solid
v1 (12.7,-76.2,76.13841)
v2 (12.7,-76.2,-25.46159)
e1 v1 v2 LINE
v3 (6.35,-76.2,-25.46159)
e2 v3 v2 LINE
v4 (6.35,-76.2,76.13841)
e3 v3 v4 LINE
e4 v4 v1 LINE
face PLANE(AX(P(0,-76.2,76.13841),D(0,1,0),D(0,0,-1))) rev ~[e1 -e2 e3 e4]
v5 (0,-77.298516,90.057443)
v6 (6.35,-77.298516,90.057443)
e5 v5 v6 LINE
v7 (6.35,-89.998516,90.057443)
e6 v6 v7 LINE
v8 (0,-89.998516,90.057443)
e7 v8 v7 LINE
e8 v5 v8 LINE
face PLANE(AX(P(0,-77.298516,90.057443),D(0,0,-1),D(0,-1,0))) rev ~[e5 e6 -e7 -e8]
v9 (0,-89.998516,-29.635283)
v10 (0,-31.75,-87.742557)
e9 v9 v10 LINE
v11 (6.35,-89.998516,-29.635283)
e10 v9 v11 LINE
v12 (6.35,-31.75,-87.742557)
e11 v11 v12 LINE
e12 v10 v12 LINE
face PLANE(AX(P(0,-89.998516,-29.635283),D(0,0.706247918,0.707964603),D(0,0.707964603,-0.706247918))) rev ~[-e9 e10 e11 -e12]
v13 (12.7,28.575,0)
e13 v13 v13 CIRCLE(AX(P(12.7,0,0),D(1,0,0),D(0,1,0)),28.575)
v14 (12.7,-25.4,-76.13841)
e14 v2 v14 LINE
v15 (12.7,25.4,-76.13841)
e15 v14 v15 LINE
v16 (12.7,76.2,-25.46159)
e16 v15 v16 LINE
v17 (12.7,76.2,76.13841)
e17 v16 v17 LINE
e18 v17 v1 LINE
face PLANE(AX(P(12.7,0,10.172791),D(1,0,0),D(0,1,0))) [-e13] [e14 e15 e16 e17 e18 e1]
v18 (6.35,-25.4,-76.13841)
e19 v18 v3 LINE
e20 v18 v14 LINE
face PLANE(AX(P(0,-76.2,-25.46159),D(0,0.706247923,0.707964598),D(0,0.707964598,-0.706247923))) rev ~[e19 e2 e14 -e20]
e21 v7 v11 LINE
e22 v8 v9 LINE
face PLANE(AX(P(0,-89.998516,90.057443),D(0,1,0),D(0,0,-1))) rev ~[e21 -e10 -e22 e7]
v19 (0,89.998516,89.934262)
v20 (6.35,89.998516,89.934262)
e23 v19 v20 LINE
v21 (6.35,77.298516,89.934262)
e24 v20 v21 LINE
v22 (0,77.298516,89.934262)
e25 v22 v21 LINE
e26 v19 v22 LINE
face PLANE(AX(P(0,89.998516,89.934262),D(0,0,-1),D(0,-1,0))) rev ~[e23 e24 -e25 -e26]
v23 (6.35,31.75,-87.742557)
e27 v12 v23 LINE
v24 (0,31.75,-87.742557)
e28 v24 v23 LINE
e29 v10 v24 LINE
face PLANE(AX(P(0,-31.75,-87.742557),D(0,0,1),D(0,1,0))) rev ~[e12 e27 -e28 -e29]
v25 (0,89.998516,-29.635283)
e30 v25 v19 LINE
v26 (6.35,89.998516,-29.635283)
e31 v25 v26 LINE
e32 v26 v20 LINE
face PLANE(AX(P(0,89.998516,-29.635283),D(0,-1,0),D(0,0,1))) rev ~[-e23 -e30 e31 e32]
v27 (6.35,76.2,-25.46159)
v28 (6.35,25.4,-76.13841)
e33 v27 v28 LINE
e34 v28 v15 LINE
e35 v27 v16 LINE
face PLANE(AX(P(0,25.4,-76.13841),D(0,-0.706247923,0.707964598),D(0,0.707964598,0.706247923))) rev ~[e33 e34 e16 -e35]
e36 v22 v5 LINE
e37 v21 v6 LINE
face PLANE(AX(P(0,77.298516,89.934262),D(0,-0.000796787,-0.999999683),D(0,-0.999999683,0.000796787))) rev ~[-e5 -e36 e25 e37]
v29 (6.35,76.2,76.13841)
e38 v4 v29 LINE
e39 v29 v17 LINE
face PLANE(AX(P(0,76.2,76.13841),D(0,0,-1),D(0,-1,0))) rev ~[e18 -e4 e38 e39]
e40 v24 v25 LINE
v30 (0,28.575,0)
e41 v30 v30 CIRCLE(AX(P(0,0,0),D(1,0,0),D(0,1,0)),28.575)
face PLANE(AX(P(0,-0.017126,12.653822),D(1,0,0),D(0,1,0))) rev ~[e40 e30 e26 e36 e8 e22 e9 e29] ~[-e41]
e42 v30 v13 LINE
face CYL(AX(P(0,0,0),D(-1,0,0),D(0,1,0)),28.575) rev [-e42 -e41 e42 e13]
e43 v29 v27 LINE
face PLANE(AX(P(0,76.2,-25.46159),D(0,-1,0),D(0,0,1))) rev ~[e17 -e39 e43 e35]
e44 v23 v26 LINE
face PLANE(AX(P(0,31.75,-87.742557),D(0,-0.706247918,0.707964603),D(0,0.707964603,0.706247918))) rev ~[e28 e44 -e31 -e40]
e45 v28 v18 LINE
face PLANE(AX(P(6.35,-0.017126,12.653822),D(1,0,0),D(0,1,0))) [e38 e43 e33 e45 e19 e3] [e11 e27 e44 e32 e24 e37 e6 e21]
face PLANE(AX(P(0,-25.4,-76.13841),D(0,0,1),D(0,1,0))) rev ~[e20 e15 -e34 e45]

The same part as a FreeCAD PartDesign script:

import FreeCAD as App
import Part
import Sketcher

V = App.Vector
Q = App.Units.Quantity

doc = App.newDocument("Part")
body = doc.addObject("PartDesign::Body", "Body")

# Sketch on YZ plane
sketch1 = doc.addObject("Sketcher::SketchObject", "Sketch")
body.addObject(sketch1)
sketch1.AttachmentSupport = (doc.YZ_Plane, [""])
sketch1.MapMode = "FlatFace"
sketch1.addGeometry([
    Part.LineSegment(V(-76, -25, 0), V(-25, -76, 0)),  # 0
    Part.LineSegment(V(-25, -76, 0), V(25, -76, 0)),  # 1
    Part.LineSegment(V(25, -76, 0), V(76, -25, 0)),  # 2
    Part.LineSegment(V(76, -25, 0), V(76, 76, 0)),  # 3
    Part.LineSegment(V(76, 76, 0), V(-76, 76, 0)),  # 4
    Part.LineSegment(V(-76, 76, 0), V(-76, -25, 0)),  # 5
    Part.Circle(V(0, 0, 0), V(0, 0, 1), 29),  # 6
], False)
sketch1.addConstraint([
    Sketcher.Constraint("Coincident", 0, 2, 1, 1),
    Sketcher.Constraint("Coincident", 1, 2, 2, 1),
    Sketcher.Constraint("Coincident", 2, 2, 3, 1),
    Sketcher.Constraint("Coincident", 3, 2, 4, 1),
    Sketcher.Constraint("Coincident", 4, 2, 5, 1),
    Sketcher.Constraint("Coincident", 5, 2, 0, 1),
    Sketcher.Constraint("Horizontal", 1),
    Sketcher.Constraint("Vertical", 3),
    Sketcher.Constraint("Horizontal", 4),
    Sketcher.Constraint("Vertical", 5),
    Sketcher.Constraint("Coincident", 6, 3, -1, 1),
    Sketcher.Constraint("Symmetric", 2, 2, 5, 2, -2),
    Sketcher.Constraint("Equal", 0, 2),
    Sketcher.Constraint("Diameter", 6, Q("2.25 in")),
    Sketcher.Constraint("DistanceX", 1, 1, 1, 2, Q("2 in")),
    Sketcher.Constraint("DistanceX", 4, 2, 4, 1, Q("6 in")),
    Sketcher.Constraint("DistanceY", 3, 1, 3, 2, Q("4 in")),
    Sketcher.Constraint("Distance", 0, Q("2.825 in")),
    Sketcher.Constraint("DistanceY", 0, 2, -1, 1, Q("76.13841 mm")),
])
pad1 = doc.addObject("PartDesign::Pad", "Pad")
body.addObject(pad1)
pad1.Profile = sketch1
pad1.Length = Q("0.5 in")

# Sketch on YZ plane
sketch2 = doc.addObject("Sketcher::SketchObject", "Sketch001")
body.addObject(sketch2)
sketch2.AttachmentSupport = (doc.YZ_Plane, [""])
sketch2.MapMode = "FlatFace"
sketch2.addGeometry([
    Part.LineSegment(V(90, 90, 0), V(77, 90, 0)),  # 0
    Part.LineSegment(V(77, 90, 0), V(-77, 90, 0)),  # 1
    Part.LineSegment(V(-77, 90, 0), V(-90, 90, 0)),  # 2
    Part.LineSegment(V(-90, 90, 0), V(-90, -30, 0)),  # 3
    Part.LineSegment(V(-90, -30, 0), V(-32, -88, 0)),  # 4
    Part.LineSegment(V(-32, -88, 0), V(32, -88, 0)),  # 5
    Part.LineSegment(V(32, -88, 0), V(90, -30, 0)),  # 6
    Part.LineSegment(V(90, -30, 0), V(90, 90, 0)),  # 7
    Part.LineSegment(V(76, -25, 0), V(25, -76, 0)),  # 8
    Part.LineSegment(V(25, -76, 0), V(-25, -76, 0)),  # 9
    Part.LineSegment(V(-25, -76, 0), V(-76, -25, 0)),  # 10
    Part.LineSegment(V(-76, -25, 0), V(-76, 76, 0)),  # 11
    Part.LineSegment(V(-76, 76, 0), V(76, 76, 0)),  # 12
    Part.LineSegment(V(76, 76, 0), V(76, -25, 0)),  # 13
], False)
sketch2.addConstraint([
    Sketcher.Constraint("Coincident", 0, 2, 1, 1),
    Sketcher.Constraint("Coincident", 1, 2, 2, 1),
    Sketcher.Constraint("Coincident", 2, 2, 3, 1),
    Sketcher.Constraint("Coincident", 3, 2, 4, 1),
    Sketcher.Constraint("Coincident", 4, 2, 5, 1),
    Sketcher.Constraint("Coincident", 5, 2, 6, 1),
    Sketcher.Constraint("Coincident", 6, 2, 7, 1),
    Sketcher.Constraint("Coincident", 7, 2, 0, 1),
    Sketcher.Constraint("Coincident", 8, 2, 9, 1),
    Sketcher.Constraint("Coincident", 9, 2, 10, 1),
    Sketcher.Constraint("Coincident", 10, 2, 11, 1),
    Sketcher.Constraint("Coincident", 11, 2, 12, 1),
    Sketcher.Constraint("Coincident", 12, 2, 13, 1),
    Sketcher.Constraint("Coincident", 13, 2, 8, 1),
    Sketcher.Constraint("Horizontal", 0),
    Sketcher.Constraint("Horizontal", 2),
    Sketcher.Constraint("Vertical", 3),
    Sketcher.Constraint("Horizontal", 5),
    Sketcher.Constraint("Vertical", 7),
    Sketcher.Constraint("Horizontal", 9),
    Sketcher.Constraint("Vertical", 11),
    Sketcher.Constraint("Horizontal", 12),
    Sketcher.Constraint("Vertical", 13),
    Sketcher.Constraint("Symmetric", 3, 2, 6, 2, -2),
    Sketcher.Constraint("Symmetric", 10, 2, 13, 2, -2),
    Sketcher.Constraint("Parallel", 6, 8),
    Sketcher.Constraint("Parallel", 4, 10),
    Sketcher.Constraint("Equal", 0, 2),
    Sketcher.Constraint("Equal", 4, 6),
    Sketcher.Constraint("DistanceX", 9, 2, 9, 1, Q("2 in")),
    Sketcher.Constraint("DistanceX", 12, 1, 12, 2, Q("6 in")),
    Sketcher.Constraint("DistanceY", 11, 1, 11, 2, Q("4 in")),
    Sketcher.Constraint("DistanceX", 0, 2, 0, 1, Q("0.5 in")),
    Sketcher.Constraint("DistanceX", 5, 1, 5, 2, Q("2.5 in")),
    Sketcher.Constraint("DistanceY", 4, 2, 1, 2, Q("7 in")),
    Sketcher.Constraint("Distance", 8, Q("2.825 in")),
    Sketcher.Constraint("Distance", 1, Q("154.597081 mm")),
    Sketcher.Constraint("DistanceY", 7, 1, 7, 2, Q("119.569545 mm")),
    Sketcher.Constraint("DistanceY", 8, 2, -1, 1, Q("76.13841 mm")),
    Sketcher.Constraint("DistanceY", -1, 1, 0, 2, Q("89.934262 mm")),
])
pad2 = doc.addObject("PartDesign::Pad", "Pad001")
body.addObject(pad2)
pad2.Profile = sketch2
pad2.Length = Q("0.25 in")

doc.recompute()
